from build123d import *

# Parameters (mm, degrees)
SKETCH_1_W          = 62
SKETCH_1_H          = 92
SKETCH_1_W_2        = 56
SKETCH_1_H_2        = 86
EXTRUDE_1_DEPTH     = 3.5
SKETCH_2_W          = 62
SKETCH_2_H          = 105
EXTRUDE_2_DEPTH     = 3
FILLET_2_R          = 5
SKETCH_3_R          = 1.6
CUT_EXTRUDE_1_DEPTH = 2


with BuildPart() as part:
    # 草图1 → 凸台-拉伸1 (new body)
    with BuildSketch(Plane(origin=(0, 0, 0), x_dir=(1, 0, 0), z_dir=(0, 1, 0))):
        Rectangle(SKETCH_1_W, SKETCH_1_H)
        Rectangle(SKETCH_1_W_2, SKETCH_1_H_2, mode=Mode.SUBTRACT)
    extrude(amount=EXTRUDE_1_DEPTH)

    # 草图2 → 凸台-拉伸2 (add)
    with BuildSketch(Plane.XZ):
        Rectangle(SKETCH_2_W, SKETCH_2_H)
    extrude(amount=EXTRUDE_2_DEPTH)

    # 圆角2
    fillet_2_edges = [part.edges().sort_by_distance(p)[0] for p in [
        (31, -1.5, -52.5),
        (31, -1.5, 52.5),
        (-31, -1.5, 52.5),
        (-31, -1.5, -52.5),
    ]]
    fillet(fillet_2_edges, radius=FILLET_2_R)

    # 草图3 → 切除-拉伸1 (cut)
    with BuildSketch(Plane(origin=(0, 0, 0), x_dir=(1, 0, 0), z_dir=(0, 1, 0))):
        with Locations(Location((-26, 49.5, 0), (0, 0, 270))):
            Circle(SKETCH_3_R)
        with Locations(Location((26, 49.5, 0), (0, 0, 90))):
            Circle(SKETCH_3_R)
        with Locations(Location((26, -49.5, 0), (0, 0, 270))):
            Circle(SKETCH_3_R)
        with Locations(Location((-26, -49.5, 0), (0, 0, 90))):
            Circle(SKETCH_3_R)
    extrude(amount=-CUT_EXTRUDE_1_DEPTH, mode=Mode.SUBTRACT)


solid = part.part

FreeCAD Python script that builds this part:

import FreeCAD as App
import Part
import Sketcher
Q = App.Units.Quantity


def edges_at(feature, points):
    """Names of the edges that pass closest to the given points."""
    edges = feature.Shape.Edges
    near = lambda p: min(range(len(edges)), key=lambda i: edges[i].distToShape(Part.Vertex(*p))[0])
    return sorted({f"Edge{near(p) + 1}" for p in points})


def add_polygon(sketch, points):
    """Adds a closed chain of lines whose ends are joined by coincident constraints."""
    first, n = sketch.GeometryCount, len(points)
    for a, b in zip(points, points[1:] + points[:1]):
        sketch.addGeometry(Part.LineSegment(App.Vector(*a, 0), App.Vector(*b, 0)), False)
    for i in range(n):
        sketch.addConstraint(Sketcher.Constraint("Coincident", first + i, 2, first + (i + 1) % n, 1))

doc = App.newDocument("Part")
body = doc.addObject("PartDesign::Body", "Body")

sketch1 = doc.addObject("Sketcher::SketchObject", "Sketch")
body.addObject(sketch1)
sketch1.AttachmentSupport = (doc.XZ_Plane, [""])
sketch1.MapMode = "FlatFace"
add_polygon(sketch1, [(-31, -46), (-31, 46), (31, 46), (31, -46)])
add_polygon(sketch1, [(28, 43), (-28, 43), (-28, -43), (28, -43)])
sketch1.addConstraint([
    Sketcher.Constraint("Vertical", 0),
    Sketcher.Constraint("Horizontal", 1),
    Sketcher.Constraint("Vertical", 2),
    Sketcher.Constraint("Horizontal", 3),
    Sketcher.Constraint("Horizontal", 4),
    Sketcher.Constraint("Vertical", 5),
    Sketcher.Constraint("Horizontal", 6),
    Sketcher.Constraint("Vertical", 7),
    Sketcher.Constraint("Symmetric", 0, 2, 2, 2, -1, 1),
    Sketcher.Constraint("Symmetric", 4, 2, 6, 2, -1, 1),
    Sketcher.Constraint("DistanceX", 1, 1, 1, 2, Q("62 mm")),
    Sketcher.Constraint("DistanceX", 4, 2, 4, 1, Q("56 mm")),
    Sketcher.Constraint("DistanceY", 0, 1, 0, 2, Q("92 mm")),
    Sketcher.Constraint("DistanceY", 5, 2, 5, 1, Q("86 mm")),
])
pad1 = doc.addObject("PartDesign::Pad", "Pad")
body.addObject(pad1)
pad1.Profile = sketch1
pad1.Length = 3.5
pad1.Reversed = True

sketch2 = doc.addObject("Sketcher::SketchObject", "Sketch001")
body.addObject(sketch2)
sketch2.AttachmentSupport = (doc.XZ_Plane, [""])
sketch2.MapMode = "FlatFace"
add_polygon(sketch2, [(-31, 52.5), (-31, -52.5), (31, -52.5), (31, 52.5)])
sketch2.addConstraint([
    Sketcher.Constraint("Vertical", 0),
    Sketcher.Constraint("Horizontal", 1),
    Sketcher.Constraint("Vertical", 2),
    Sketcher.Constraint("Horizontal", 3),
    Sketcher.Constraint("Symmetric", 0, 2, 2, 2, -1, 1),
    Sketcher.Constraint("DistanceX", 1, 1, 1, 2, Q("62 mm")),
    Sketcher.Constraint("DistanceY", 0, 2, 0, 1, Q("105 mm")),
])
pad2 = doc.addObject("PartDesign::Pad", "Pad001")
body.addObject(pad2)
pad2.Profile = sketch2
pad2.Length = 3
doc.recompute()

fillet = doc.addObject("PartDesign::Fillet", "Fillet")
body.addObject(fillet)
fillet.Base = (pad2, edges_at(pad2, [
    (31, -1.5, -52.5),
    (31, -1.5, 52.5),
    (-31, -1.5, 52.5),
    (-31, -1.5, -52.5),
]))
fillet.Radius = 5

sketch3 = doc.addObject("Sketcher::SketchObject", "Sketch002")
body.addObject(sketch3)
sketch3.AttachmentSupport = (doc.XZ_Plane, [""])
sketch3.MapMode = "FlatFace"
sketch3.addGeometry([
    Part.Circle(App.Vector(-26, -49.5, 0), App.Vector(0, 0, 1), 1.6),
    Part.Circle(App.Vector(26, -49.5, 0), App.Vector(0, 0, 1), 1.6),
    Part.Circle(App.Vector(26, 49.5, 0), App.Vector(0, 0, 1), 1.6),
    Part.Circle(App.Vector(-26, 49.5, 0), App.Vector(0, 0, 1), 1.6),
], False)
sketch3.addConstraint([
    Sketcher.Constraint("Equal", 0, 1),
    Sketcher.Constraint("Equal", 1, 2),
    Sketcher.Constraint("Equal", 2, 3),
    Sketcher.Constraint("Symmetric", 0, 3, 2, 3, -1, 1),
    Sketcher.Constraint("Symmetric", 1, 3, 3, 3, -1, 1),
    Sketcher.Constraint("Symmetric", 0, 3, 1, 3, -2),
    Sketcher.Constraint("Diameter", 0, Q("3.2 mm")),
    Sketcher.Constraint("DistanceX", 0, 3, -1, 1, Q("26 mm")),
    Sketcher.Constraint("DistanceY", 1, 3, 2, 3, Q("99 mm")),
])
pocket1 = doc.addObject("PartDesign::Pocket", "Pocket")
body.addObject(pocket1)
pocket1.Profile = sketch3
pocket1.Length = 2
pocket1.Reversed = True

doc.recompute()
